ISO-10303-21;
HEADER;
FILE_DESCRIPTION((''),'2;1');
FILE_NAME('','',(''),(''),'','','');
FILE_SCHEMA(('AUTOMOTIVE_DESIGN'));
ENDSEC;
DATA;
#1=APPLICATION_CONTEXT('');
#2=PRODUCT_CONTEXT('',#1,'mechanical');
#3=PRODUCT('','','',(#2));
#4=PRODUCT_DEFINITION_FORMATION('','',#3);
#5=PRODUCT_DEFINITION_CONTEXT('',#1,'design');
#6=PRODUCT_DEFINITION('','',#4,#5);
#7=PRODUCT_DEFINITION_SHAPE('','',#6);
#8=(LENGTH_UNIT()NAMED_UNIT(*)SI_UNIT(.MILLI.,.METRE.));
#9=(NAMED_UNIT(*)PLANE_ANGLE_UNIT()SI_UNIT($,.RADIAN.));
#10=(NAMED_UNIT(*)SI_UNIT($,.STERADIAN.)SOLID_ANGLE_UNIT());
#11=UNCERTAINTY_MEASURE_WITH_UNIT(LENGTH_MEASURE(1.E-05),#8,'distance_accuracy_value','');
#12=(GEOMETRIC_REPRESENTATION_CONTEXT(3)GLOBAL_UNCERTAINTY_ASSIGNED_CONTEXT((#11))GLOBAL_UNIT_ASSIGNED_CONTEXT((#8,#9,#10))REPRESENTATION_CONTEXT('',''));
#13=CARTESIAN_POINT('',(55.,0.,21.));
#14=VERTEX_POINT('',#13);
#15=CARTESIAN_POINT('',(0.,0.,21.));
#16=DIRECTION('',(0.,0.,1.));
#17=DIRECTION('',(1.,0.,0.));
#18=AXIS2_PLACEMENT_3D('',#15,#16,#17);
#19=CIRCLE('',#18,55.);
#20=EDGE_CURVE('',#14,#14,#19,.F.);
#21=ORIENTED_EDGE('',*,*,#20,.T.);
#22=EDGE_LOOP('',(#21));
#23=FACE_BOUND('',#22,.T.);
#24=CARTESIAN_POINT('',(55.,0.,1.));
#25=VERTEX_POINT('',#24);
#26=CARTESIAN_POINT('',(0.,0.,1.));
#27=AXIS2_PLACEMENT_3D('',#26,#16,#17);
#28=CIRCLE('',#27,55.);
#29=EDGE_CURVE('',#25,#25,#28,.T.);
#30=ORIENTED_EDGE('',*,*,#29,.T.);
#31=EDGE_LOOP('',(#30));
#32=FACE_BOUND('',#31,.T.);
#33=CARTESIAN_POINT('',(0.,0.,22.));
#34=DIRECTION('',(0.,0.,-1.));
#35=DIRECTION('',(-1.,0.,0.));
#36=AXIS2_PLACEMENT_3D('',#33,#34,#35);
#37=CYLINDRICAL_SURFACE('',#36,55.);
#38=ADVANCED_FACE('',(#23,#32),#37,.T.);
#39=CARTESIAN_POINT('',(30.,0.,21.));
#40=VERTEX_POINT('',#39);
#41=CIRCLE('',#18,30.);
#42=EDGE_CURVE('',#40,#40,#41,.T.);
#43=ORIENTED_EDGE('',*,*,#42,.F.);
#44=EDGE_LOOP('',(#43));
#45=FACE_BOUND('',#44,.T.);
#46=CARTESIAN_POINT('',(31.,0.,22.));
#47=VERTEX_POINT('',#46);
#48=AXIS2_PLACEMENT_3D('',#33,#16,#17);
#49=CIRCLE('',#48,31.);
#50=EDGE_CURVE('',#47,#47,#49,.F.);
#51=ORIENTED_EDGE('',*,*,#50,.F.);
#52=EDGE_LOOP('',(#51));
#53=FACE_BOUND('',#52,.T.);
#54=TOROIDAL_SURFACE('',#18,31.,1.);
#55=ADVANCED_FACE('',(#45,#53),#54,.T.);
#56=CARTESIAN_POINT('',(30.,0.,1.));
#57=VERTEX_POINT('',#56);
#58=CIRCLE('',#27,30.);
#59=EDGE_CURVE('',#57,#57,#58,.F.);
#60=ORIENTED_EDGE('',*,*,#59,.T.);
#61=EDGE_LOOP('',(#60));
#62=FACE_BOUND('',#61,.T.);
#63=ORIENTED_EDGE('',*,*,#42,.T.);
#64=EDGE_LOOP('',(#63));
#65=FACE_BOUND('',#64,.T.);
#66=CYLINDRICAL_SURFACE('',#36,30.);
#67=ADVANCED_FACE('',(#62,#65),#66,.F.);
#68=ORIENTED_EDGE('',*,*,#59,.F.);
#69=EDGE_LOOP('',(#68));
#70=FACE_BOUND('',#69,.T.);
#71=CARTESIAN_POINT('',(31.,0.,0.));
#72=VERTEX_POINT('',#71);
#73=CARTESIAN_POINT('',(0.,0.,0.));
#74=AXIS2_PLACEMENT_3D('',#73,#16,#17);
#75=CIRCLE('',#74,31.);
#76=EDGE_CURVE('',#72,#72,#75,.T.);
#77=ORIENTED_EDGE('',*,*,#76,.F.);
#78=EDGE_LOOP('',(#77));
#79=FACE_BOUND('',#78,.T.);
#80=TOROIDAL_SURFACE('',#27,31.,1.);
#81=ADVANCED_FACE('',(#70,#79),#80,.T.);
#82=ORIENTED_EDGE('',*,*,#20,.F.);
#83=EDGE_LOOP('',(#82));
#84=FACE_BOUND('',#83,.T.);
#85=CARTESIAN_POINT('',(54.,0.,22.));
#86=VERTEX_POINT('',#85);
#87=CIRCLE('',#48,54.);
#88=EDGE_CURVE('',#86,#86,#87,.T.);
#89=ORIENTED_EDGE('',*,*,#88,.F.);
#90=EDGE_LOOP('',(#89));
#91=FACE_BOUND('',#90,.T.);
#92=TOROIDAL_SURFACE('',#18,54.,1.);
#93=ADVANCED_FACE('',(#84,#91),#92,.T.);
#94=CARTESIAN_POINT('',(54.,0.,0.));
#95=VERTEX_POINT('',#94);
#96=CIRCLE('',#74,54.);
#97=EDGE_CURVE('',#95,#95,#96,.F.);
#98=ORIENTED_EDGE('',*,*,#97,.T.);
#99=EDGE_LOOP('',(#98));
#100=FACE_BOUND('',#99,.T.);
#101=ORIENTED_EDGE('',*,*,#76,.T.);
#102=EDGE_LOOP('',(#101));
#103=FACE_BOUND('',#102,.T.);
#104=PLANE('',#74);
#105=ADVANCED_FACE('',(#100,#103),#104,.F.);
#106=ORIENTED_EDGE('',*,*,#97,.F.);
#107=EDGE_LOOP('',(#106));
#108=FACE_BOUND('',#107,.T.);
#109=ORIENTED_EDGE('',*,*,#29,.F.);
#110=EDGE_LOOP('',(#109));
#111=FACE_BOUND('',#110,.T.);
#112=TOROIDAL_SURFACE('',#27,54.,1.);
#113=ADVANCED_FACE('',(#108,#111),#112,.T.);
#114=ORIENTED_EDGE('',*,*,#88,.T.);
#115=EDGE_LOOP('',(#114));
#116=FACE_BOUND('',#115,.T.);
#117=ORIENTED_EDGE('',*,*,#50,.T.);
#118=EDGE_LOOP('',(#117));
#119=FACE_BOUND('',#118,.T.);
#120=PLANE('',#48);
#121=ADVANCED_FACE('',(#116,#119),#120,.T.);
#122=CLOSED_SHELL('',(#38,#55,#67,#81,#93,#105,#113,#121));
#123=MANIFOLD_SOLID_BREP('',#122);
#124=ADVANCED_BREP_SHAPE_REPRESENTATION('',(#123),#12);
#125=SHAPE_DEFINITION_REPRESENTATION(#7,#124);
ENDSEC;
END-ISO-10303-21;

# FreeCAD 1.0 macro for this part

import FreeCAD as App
import Part
import Sketcher
Q = App.Units.Quantity


def edges_at(feature, points):
    """Names of the edges that pass closest to the given points."""
    edges = feature.Shape.Edges
    near = lambda p: min(range(len(edges)), key=lambda i: edges[i].distToShape(Part.Vertex(*p))[0])
    return sorted({f"Edge{near(p) + 1}" for p in points})

doc = App.newDocument("Part")
body = doc.addObject("PartDesign::Body", "Body")

sketch1 = doc.addObject("Sketcher::SketchObject", "Sketch")
body.addObject(sketch1)
sketch1.AttachmentSupport = (doc.XY_Plane, [""])
sketch1.MapMode = "FlatFace"
sketch1.addGeometry([
    Part.Circle(App.Vector(0, 0, 0), App.Vector(0, 0, 1), 55),
    Part.Circle(App.Vector(0, 0, 0), App.Vector(0, 0, 1), 30),
], False)
sketch1.addConstraint([
    Sketcher.Constraint("Coincident", 0, 3, -1, 1),
    Sketcher.Constraint("Coincident", 1, 3, -1, 1),
    Sketcher.Constraint("Diameter", 0, Q("110 mm")),
    Sketcher.Constraint("Diameter", 1, Q("60 mm")),
])
pad1 = doc.addObject("PartDesign::Pad", "Pad")
body.addObject(pad1)
pad1.Profile = sketch1
pad1.Length = 22
doc.recompute()

fillet = doc.addObject("PartDesign::Fillet", "Fillet")
body.addObject(fillet)
fillet.Base = (pad1, edges_at(pad1, [
    (-55, 0, 0),
    (-55, 0, 22),
    (-30, 0, 0),
    (-30, 0, 22),
]))
fillet.Radius = 1

doc.recompute()
